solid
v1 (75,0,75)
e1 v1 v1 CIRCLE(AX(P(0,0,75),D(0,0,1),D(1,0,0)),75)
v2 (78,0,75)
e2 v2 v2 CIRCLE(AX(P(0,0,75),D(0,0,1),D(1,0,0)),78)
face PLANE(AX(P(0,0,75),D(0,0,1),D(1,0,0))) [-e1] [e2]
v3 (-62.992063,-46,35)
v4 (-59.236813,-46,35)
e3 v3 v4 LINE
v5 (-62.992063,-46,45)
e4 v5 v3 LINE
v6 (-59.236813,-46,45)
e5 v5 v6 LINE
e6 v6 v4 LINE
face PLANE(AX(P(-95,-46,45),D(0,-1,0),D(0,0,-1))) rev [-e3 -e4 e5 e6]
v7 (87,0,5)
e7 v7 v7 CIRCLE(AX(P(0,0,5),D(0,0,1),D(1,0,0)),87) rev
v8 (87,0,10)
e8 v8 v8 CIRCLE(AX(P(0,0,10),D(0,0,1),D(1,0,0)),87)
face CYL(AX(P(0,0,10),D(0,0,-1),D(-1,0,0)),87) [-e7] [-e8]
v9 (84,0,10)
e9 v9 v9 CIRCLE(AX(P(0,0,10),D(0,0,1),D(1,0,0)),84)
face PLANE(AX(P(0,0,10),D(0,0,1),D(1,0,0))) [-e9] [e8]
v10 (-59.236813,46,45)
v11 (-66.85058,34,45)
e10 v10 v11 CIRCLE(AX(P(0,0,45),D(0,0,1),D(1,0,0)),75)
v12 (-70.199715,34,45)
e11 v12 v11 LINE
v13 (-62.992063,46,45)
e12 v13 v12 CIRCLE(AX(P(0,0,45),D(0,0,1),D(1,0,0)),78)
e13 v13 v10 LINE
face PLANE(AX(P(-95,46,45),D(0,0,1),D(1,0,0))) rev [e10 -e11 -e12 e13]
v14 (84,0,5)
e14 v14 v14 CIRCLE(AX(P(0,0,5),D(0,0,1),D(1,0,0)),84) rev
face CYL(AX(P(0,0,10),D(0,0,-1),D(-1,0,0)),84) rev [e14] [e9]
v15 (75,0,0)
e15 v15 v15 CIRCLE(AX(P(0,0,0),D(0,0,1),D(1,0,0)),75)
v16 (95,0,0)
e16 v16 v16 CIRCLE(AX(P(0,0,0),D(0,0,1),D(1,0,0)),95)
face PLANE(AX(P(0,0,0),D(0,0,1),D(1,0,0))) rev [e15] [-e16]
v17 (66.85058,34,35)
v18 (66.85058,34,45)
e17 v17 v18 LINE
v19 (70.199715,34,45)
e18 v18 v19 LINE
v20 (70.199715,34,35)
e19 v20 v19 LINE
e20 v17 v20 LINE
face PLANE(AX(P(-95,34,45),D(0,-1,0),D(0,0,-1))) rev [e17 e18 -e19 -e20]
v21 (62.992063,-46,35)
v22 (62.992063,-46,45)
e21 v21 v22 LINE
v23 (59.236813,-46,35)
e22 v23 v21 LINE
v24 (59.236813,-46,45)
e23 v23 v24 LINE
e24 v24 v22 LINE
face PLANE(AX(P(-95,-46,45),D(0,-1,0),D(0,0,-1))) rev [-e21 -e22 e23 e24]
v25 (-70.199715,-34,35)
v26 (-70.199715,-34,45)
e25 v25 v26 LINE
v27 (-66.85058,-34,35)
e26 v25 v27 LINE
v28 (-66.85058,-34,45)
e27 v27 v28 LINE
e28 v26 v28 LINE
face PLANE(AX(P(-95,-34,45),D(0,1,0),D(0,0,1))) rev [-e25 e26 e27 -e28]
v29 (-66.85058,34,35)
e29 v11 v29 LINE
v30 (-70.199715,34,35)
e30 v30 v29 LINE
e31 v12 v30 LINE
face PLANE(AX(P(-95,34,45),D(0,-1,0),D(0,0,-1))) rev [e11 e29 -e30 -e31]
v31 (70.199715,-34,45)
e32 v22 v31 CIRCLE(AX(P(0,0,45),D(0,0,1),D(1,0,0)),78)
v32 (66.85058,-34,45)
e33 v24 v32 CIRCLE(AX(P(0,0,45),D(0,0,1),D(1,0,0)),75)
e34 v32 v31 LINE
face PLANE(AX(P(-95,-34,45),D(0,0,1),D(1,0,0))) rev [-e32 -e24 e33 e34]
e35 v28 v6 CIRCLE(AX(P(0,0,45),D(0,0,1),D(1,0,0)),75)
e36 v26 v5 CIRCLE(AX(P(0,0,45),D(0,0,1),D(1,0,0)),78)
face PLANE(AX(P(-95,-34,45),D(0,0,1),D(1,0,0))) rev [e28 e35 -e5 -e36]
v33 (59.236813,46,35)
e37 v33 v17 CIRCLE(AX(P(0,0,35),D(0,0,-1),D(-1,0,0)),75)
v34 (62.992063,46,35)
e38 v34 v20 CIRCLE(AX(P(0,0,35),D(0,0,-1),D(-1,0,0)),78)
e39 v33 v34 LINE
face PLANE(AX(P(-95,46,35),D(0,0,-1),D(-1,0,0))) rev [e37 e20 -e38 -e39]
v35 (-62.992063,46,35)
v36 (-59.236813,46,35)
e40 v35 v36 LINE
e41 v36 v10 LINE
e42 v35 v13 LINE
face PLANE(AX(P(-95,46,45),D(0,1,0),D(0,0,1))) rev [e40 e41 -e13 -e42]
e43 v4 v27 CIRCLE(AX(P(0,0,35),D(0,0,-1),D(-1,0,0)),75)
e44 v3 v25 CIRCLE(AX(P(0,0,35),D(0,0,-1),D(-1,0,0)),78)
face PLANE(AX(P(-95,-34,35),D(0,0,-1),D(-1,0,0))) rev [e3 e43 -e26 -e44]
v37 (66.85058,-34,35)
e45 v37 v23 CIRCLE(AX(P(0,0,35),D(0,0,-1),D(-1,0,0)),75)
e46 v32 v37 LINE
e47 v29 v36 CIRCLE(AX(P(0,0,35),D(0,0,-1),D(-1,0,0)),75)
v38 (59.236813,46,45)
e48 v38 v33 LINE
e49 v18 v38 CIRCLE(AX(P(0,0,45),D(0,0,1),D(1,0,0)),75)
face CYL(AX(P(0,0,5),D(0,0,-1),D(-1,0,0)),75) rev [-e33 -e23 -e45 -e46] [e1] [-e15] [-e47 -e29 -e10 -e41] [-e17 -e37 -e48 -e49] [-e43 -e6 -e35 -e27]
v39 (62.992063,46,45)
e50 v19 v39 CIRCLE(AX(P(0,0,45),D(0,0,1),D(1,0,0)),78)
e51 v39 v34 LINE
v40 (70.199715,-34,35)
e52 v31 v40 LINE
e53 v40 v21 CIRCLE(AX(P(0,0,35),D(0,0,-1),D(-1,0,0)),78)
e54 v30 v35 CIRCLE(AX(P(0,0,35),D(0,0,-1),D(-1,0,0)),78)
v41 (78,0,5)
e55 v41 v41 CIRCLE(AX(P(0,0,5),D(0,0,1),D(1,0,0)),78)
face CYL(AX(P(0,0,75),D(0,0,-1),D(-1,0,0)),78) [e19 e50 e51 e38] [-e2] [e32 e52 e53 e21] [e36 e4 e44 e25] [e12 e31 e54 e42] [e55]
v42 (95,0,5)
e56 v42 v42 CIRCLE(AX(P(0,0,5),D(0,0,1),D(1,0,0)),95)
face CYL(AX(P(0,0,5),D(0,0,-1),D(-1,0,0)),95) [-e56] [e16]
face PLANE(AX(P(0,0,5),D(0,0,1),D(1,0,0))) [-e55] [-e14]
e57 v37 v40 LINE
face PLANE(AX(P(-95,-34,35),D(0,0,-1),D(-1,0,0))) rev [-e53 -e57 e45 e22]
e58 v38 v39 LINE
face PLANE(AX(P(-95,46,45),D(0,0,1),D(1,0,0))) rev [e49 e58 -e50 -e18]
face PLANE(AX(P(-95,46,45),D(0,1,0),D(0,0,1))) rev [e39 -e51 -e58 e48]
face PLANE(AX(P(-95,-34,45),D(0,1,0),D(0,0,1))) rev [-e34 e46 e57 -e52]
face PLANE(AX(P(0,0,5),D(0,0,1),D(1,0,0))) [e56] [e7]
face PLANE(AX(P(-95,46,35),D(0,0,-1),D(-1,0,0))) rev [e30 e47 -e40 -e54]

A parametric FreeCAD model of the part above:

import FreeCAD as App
import Part
import Sketcher

V = App.Vector
Q = App.Units.Quantity

doc = App.newDocument("Part")
body = doc.addObject("PartDesign::Body", "Body")

# Sketch on XY plane
sketch1 = body.newObject("Sketcher::SketchObject", "Sketch")
sketch1.AttachmentSupport = (doc.getObject("XY_Plane"), [""])
sketch1.MapMode = "FlatFace"
sketch1.addGeometry(Part.Circle(V(0, 0, 0), V(0, 0, 1), 95), False)
sketch1.addGeometry(Part.Circle(V(0, 0, 0), V(0, 0, 1), 75), False)
sketch1.addConstraint(Sketcher.Constraint("Coincident", 0, 3, -1, 1))
sketch1.addConstraint(Sketcher.Constraint("Coincident", 1, 3, -1, 1))
sketch1.addConstraint(Sketcher.Constraint("Diameter", 0, Q("190 mm")))
sketch1.addConstraint(Sketcher.Constraint("Diameter", 1, Q("150 mm")))
pad1 = body.newObject("PartDesign::Pad", "Pad")
pad1.Profile = sketch1
pad1.Length = 5

# Sketch on XY plane
sketch2 = body.newObject("Sketcher::SketchObject", "Sketch001")
sketch2.AttachmentSupport = (doc.getObject("XY_Plane"), [""])
sketch2.MapMode = "FlatFace"
sketch2.addGeometry(Part.Circle(V(0, 0, 0), V(0, 0, 1), 87), False)
sketch2.addGeometry(Part.Circle(V(0, 0, 0), V(0, 0, 1), 84), False)
sketch2.addConstraint(Sketcher.Constraint("Coincident", 0, 3, -1, 1))
sketch2.addConstraint(Sketcher.Constraint("Coincident", 1, 3, -1, 1))
sketch2.addConstraint(Sketcher.Constraint("Diameter", 0, Q("174 mm")))
sketch2.addConstraint(Sketcher.Constraint("Diameter", 1, Q("168 mm")))
pad2 = body.newObject("PartDesign::Pad", "Pad001")
pad2.Profile = sketch2
pad2.Length = 10

# Sketch on XY plane
sketch3 = body.newObject("Sketcher::SketchObject", "Sketch002")
sketch3.AttachmentSupport = (doc.getObject("XY_Plane"), [""])
sketch3.MapMode = "FlatFace"
sketch3.AttachmentOffset = App.Placement(V(0, 0, 5), App.Rotation())
sketch3.addGeometry(Part.Circle(V(0, 0, 0), V(0, 0, 1), 78), False)
sketch3.addGeometry(Part.Circle(V(0, 0, 0), V(0, 0, 1), 75), False)
sketch3.addConstraint(Sketcher.Constraint("Coincident", 0, 3, -1, 1))
sketch3.addConstraint(Sketcher.Constraint("Coincident", 1, 3, -1, 1))
sketch3.addConstraint(Sketcher.Constraint("Diameter", 0, Q("156 mm")))
sketch3.addConstraint(Sketcher.Constraint("Diameter", 1, Q("150 mm")))
pad3 = body.newObject("PartDesign::Pad", "Pad002")
pad3.Profile = sketch3
pad3.Length = 70

# Sketch on YZ plane
sketch4 = body.newObject("Sketcher::SketchObject", "Sketch003")
sketch4.AttachmentSupport = (doc.getObject("YZ_Plane"), [""])
sketch4.MapMode = "FlatFace"
sketch4.AttachmentOffset = App.Placement(V(0, 0, 10), App.Rotation())
sketch4.addGeometry(Part.LineSegment(V(46, 45, 0), V(34, 45, 0)), False)
sketch4.addGeometry(Part.LineSegment(V(34, 45, 0), V(34, 35, 0)), False)
sketch4.addGeometry(Part.LineSegment(V(34, 35, 0), V(46, 35, 0)), False)
sketch4.addGeometry(Part.LineSegment(V(46, 35, 0), V(46, 45, 0)), False)
sketch4.addConstraint(Sketcher.Constraint("Coincident", 0, 2, 1, 1))
sketch4.addConstraint(Sketcher.Constraint("Coincident", 1, 2, 2, 1))
sketch4.addConstraint(Sketcher.Constraint("Coincident", 2, 2, 3, 1))
sketch4.addConstraint(Sketcher.Constraint("Coincident", 3, 2, 0, 1))
sketch4.addConstraint(Sketcher.Constraint("Horizontal", 0))
sketch4.addConstraint(Sketcher.Constraint("Vertical", 1))
sketch4.addConstraint(Sketcher.Constraint("Horizontal", 2))
sketch4.addConstraint(Sketcher.Constraint("Vertical", 3))
sketch4.addConstraint(Sketcher.Constraint("DistanceX", 0, 2, 0, 1, Q("12 mm")))
sketch4.addConstraint(Sketcher.Constraint("DistanceY", 1, 2, 1, 1, Q("10 mm")))
sketch4.addConstraint(Sketcher.Constraint("DistanceX", -1, 1, 0, 2, Q("34 mm")))
sketch4.addConstraint(Sketcher.Constraint("DistanceY", -1, 1, 0, 2, Q("45 mm")))
pocket1 = body.newObject("PartDesign::Pocket", "Pocket")
pocket1.Profile = sketch4
pocket1.Type = "ThroughAll"
pocket1.Midplane = True

# Sketch on YZ plane
sketch5 = body.newObject("Sketcher::SketchObject", "Sketch004")
sketch5.AttachmentSupport = (doc.getObject("YZ_Plane"), [""])
sketch5.MapMode = "FlatFace"
sketch5.AttachmentOffset = App.Placement(V(0, 0, 10), App.Rotation())
sketch5.addGeometry(Part.LineSegment(V(-34, 45, 0), V(-46, 45, 0)), False)
sketch5.addGeometry(Part.LineSegment(V(-46, 45, 0), V(-46, 35, 0)), False)
sketch5.addGeometry(Part.LineSegment(V(-46, 35, 0), V(-34, 35, 0)), False)
sketch5.addGeometry(Part.LineSegment(V(-34, 35, 0), V(-34, 45, 0)), False)
sketch5.addConstraint(Sketcher.Constraint("Coincident", 0, 2, 1, 1))
sketch5.addConstraint(Sketcher.Constraint("Coincident", 1, 2, 2, 1))
sketch5.addConstraint(Sketcher.Constraint("Coincident", 2, 2, 3, 1))
sketch5.addConstraint(Sketcher.Constraint("Coincident", 3, 2, 0, 1))
sketch5.addConstraint(Sketcher.Constraint("Horizontal", 0))
sketch5.addConstraint(Sketcher.Constraint("Vertical", 1))
sketch5.addConstraint(Sketcher.Constraint("Horizontal", 2))
sketch5.addConstraint(Sketcher.Constraint("Vertical", 3))
sketch5.addConstraint(Sketcher.Constraint("DistanceX", 0, 2, 0, 1, Q("12 mm")))
sketch5.addConstraint(Sketcher.Constraint("DistanceY", 1, 2, 1, 1, Q("10 mm")))
sketch5.addConstraint(Sketcher.Constraint("DistanceX", 0, 2, -1, 1, Q("46 mm")))
sketch5.addConstraint(Sketcher.Constraint("DistanceY", -1, 1, 0, 2, Q("45 mm")))
pocket2 = body.newObject("PartDesign::Pocket", "Pocket001")
pocket2.Profile = sketch5
pocket2.Type = "ThroughAll"
pocket2.Midplane = True

doc.recompute()
